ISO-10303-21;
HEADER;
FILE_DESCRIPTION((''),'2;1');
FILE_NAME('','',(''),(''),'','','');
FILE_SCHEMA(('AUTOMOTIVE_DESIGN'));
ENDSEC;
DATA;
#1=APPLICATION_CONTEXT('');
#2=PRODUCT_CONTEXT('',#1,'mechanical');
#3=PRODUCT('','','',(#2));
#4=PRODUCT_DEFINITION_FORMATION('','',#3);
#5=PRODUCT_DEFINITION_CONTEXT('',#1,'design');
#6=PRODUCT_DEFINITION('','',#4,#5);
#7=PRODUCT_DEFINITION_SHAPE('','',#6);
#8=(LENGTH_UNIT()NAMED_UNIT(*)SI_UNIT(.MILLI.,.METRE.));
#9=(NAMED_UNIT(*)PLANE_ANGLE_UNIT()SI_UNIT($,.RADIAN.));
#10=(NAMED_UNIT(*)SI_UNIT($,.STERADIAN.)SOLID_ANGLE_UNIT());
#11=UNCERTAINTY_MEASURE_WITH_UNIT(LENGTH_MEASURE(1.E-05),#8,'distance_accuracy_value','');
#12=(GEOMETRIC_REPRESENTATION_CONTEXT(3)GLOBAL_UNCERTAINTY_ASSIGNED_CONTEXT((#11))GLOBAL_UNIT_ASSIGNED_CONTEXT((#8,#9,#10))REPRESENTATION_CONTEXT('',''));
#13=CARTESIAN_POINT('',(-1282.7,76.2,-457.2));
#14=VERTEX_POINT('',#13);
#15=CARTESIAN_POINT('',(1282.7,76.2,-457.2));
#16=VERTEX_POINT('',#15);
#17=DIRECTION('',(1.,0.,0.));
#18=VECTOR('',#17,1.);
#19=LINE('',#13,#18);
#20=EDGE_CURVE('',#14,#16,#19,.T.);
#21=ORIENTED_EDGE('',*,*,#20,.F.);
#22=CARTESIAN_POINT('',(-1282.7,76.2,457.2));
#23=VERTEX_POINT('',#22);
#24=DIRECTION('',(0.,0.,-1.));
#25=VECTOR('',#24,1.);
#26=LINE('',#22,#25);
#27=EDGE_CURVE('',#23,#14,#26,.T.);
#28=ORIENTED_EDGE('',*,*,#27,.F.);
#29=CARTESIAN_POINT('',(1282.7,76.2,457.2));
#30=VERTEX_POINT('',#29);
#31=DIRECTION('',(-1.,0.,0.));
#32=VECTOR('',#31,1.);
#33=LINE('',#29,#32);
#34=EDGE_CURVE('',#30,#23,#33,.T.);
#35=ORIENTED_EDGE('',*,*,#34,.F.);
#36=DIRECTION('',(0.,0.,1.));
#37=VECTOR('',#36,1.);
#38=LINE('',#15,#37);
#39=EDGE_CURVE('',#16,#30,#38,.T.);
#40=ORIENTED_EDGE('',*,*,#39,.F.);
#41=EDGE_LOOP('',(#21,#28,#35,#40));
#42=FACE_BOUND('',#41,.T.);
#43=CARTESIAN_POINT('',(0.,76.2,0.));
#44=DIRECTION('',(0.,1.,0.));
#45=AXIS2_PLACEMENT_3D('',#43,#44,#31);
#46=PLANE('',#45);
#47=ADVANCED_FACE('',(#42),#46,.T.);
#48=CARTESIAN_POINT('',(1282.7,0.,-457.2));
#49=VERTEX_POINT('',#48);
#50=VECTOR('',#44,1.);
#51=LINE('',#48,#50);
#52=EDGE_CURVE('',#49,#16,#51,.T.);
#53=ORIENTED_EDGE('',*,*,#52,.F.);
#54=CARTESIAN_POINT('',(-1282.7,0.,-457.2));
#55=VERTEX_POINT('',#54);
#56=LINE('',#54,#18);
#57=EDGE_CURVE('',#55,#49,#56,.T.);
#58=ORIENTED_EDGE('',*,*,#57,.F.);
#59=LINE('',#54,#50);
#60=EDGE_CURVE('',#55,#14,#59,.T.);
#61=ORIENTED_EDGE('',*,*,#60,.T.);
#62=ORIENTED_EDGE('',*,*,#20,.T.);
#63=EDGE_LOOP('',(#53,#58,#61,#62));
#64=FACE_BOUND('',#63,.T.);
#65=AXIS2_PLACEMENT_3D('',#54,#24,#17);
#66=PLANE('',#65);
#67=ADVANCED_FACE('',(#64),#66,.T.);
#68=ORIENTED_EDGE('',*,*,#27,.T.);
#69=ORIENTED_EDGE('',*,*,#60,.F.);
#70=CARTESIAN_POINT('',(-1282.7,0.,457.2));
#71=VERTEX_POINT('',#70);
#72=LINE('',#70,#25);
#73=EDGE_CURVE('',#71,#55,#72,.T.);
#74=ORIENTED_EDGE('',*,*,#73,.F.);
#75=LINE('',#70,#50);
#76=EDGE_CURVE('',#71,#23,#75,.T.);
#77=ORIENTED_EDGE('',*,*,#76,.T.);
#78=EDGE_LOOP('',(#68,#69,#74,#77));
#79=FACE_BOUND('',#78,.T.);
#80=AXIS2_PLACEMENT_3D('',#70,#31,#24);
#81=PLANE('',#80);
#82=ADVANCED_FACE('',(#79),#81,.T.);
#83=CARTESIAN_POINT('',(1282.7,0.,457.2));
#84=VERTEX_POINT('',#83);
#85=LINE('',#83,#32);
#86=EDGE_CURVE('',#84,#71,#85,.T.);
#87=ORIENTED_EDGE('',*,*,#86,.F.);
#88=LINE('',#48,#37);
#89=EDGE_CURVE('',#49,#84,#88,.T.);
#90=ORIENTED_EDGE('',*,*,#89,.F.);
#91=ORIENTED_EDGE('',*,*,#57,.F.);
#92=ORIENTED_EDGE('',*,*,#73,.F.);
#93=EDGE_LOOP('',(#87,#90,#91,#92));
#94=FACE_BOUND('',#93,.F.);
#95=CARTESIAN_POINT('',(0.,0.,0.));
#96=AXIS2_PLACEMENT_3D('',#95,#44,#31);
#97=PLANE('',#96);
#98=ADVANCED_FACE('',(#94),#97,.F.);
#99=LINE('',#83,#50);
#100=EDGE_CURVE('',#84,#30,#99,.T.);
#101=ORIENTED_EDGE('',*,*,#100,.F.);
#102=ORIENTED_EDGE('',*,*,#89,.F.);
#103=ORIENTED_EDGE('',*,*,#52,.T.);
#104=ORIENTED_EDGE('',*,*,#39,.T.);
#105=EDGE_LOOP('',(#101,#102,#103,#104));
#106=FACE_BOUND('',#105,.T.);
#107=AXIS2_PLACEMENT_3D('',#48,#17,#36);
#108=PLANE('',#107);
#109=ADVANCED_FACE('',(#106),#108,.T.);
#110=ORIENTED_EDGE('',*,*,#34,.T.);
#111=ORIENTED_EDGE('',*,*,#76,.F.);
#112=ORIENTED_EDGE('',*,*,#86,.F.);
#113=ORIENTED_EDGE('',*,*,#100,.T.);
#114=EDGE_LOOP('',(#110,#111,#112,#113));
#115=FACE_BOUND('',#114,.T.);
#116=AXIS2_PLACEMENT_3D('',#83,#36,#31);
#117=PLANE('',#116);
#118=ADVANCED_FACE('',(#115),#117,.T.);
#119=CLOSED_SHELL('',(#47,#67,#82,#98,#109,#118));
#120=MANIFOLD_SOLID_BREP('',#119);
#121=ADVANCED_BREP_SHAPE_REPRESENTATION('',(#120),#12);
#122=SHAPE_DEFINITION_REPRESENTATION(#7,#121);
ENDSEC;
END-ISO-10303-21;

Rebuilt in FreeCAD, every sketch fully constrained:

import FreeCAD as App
import Part
import Sketcher
from FreeCAD import Vector
Q = App.Units.Quantity

doc = App.newDocument("Part")
body = doc.addObject("PartDesign::Body", "Body")

# Sketch on XZ plane
sketch1 = doc.addObject("Sketcher::SketchObject", "Sketch")
body.addObject(sketch1)
sketch1.AttachmentSupport = (doc.XZ_Plane, [""])
sketch1.MapMode = "FlatFace"
sketch1.addGeometry(Part.LineSegment(Vector(1283, -457, 0), Vector(-1283, -457, 0)), False)
sketch1.addGeometry(Part.LineSegment(Vector(-1283, -457, 0), Vector(-1283, 457, 0)), False)
sketch1.addGeometry(Part.LineSegment(Vector(-1283, 457, 0), Vector(1283, 457, 0)), False)
sketch1.addGeometry(Part.LineSegment(Vector(1283, 457, 0), Vector(1283, -457, 0)), False)
sketch1.addConstraint(Sketcher.Constraint("Coincident", 0, 2, 1, 1))
sketch1.addConstraint(Sketcher.Constraint("Coincident", 1, 2, 2, 1))
sketch1.addConstraint(Sketcher.Constraint("Coincident", 2, 2, 3, 1))
sketch1.addConstraint(Sketcher.Constraint("Coincident", 3, 2, 0, 1))
sketch1.addConstraint(Sketcher.Constraint("Horizontal", 0))
sketch1.addConstraint(Sketcher.Constraint("Vertical", 1))
sketch1.addConstraint(Sketcher.Constraint("Horizontal", 2))
sketch1.addConstraint(Sketcher.Constraint("Vertical", 3))
sketch1.addConstraint(Sketcher.Constraint("Symmetric", 0, 2, 2, 2, -1, 1))
sketch1.addConstraint(Sketcher.Constraint("DistanceX", 0, 2, 0, 1, Q("101 in")))
sketch1.addConstraint(Sketcher.Constraint("DistanceY", 1, 1, 1, 2, Q("36 in")))
pad1 = doc.addObject("PartDesign::Pad", "Pad")
body.addObject(pad1)
pad1.Profile = sketch1
pad1.Length = Q("3 in")
pad1.Reversed = True

doc.recompute()
